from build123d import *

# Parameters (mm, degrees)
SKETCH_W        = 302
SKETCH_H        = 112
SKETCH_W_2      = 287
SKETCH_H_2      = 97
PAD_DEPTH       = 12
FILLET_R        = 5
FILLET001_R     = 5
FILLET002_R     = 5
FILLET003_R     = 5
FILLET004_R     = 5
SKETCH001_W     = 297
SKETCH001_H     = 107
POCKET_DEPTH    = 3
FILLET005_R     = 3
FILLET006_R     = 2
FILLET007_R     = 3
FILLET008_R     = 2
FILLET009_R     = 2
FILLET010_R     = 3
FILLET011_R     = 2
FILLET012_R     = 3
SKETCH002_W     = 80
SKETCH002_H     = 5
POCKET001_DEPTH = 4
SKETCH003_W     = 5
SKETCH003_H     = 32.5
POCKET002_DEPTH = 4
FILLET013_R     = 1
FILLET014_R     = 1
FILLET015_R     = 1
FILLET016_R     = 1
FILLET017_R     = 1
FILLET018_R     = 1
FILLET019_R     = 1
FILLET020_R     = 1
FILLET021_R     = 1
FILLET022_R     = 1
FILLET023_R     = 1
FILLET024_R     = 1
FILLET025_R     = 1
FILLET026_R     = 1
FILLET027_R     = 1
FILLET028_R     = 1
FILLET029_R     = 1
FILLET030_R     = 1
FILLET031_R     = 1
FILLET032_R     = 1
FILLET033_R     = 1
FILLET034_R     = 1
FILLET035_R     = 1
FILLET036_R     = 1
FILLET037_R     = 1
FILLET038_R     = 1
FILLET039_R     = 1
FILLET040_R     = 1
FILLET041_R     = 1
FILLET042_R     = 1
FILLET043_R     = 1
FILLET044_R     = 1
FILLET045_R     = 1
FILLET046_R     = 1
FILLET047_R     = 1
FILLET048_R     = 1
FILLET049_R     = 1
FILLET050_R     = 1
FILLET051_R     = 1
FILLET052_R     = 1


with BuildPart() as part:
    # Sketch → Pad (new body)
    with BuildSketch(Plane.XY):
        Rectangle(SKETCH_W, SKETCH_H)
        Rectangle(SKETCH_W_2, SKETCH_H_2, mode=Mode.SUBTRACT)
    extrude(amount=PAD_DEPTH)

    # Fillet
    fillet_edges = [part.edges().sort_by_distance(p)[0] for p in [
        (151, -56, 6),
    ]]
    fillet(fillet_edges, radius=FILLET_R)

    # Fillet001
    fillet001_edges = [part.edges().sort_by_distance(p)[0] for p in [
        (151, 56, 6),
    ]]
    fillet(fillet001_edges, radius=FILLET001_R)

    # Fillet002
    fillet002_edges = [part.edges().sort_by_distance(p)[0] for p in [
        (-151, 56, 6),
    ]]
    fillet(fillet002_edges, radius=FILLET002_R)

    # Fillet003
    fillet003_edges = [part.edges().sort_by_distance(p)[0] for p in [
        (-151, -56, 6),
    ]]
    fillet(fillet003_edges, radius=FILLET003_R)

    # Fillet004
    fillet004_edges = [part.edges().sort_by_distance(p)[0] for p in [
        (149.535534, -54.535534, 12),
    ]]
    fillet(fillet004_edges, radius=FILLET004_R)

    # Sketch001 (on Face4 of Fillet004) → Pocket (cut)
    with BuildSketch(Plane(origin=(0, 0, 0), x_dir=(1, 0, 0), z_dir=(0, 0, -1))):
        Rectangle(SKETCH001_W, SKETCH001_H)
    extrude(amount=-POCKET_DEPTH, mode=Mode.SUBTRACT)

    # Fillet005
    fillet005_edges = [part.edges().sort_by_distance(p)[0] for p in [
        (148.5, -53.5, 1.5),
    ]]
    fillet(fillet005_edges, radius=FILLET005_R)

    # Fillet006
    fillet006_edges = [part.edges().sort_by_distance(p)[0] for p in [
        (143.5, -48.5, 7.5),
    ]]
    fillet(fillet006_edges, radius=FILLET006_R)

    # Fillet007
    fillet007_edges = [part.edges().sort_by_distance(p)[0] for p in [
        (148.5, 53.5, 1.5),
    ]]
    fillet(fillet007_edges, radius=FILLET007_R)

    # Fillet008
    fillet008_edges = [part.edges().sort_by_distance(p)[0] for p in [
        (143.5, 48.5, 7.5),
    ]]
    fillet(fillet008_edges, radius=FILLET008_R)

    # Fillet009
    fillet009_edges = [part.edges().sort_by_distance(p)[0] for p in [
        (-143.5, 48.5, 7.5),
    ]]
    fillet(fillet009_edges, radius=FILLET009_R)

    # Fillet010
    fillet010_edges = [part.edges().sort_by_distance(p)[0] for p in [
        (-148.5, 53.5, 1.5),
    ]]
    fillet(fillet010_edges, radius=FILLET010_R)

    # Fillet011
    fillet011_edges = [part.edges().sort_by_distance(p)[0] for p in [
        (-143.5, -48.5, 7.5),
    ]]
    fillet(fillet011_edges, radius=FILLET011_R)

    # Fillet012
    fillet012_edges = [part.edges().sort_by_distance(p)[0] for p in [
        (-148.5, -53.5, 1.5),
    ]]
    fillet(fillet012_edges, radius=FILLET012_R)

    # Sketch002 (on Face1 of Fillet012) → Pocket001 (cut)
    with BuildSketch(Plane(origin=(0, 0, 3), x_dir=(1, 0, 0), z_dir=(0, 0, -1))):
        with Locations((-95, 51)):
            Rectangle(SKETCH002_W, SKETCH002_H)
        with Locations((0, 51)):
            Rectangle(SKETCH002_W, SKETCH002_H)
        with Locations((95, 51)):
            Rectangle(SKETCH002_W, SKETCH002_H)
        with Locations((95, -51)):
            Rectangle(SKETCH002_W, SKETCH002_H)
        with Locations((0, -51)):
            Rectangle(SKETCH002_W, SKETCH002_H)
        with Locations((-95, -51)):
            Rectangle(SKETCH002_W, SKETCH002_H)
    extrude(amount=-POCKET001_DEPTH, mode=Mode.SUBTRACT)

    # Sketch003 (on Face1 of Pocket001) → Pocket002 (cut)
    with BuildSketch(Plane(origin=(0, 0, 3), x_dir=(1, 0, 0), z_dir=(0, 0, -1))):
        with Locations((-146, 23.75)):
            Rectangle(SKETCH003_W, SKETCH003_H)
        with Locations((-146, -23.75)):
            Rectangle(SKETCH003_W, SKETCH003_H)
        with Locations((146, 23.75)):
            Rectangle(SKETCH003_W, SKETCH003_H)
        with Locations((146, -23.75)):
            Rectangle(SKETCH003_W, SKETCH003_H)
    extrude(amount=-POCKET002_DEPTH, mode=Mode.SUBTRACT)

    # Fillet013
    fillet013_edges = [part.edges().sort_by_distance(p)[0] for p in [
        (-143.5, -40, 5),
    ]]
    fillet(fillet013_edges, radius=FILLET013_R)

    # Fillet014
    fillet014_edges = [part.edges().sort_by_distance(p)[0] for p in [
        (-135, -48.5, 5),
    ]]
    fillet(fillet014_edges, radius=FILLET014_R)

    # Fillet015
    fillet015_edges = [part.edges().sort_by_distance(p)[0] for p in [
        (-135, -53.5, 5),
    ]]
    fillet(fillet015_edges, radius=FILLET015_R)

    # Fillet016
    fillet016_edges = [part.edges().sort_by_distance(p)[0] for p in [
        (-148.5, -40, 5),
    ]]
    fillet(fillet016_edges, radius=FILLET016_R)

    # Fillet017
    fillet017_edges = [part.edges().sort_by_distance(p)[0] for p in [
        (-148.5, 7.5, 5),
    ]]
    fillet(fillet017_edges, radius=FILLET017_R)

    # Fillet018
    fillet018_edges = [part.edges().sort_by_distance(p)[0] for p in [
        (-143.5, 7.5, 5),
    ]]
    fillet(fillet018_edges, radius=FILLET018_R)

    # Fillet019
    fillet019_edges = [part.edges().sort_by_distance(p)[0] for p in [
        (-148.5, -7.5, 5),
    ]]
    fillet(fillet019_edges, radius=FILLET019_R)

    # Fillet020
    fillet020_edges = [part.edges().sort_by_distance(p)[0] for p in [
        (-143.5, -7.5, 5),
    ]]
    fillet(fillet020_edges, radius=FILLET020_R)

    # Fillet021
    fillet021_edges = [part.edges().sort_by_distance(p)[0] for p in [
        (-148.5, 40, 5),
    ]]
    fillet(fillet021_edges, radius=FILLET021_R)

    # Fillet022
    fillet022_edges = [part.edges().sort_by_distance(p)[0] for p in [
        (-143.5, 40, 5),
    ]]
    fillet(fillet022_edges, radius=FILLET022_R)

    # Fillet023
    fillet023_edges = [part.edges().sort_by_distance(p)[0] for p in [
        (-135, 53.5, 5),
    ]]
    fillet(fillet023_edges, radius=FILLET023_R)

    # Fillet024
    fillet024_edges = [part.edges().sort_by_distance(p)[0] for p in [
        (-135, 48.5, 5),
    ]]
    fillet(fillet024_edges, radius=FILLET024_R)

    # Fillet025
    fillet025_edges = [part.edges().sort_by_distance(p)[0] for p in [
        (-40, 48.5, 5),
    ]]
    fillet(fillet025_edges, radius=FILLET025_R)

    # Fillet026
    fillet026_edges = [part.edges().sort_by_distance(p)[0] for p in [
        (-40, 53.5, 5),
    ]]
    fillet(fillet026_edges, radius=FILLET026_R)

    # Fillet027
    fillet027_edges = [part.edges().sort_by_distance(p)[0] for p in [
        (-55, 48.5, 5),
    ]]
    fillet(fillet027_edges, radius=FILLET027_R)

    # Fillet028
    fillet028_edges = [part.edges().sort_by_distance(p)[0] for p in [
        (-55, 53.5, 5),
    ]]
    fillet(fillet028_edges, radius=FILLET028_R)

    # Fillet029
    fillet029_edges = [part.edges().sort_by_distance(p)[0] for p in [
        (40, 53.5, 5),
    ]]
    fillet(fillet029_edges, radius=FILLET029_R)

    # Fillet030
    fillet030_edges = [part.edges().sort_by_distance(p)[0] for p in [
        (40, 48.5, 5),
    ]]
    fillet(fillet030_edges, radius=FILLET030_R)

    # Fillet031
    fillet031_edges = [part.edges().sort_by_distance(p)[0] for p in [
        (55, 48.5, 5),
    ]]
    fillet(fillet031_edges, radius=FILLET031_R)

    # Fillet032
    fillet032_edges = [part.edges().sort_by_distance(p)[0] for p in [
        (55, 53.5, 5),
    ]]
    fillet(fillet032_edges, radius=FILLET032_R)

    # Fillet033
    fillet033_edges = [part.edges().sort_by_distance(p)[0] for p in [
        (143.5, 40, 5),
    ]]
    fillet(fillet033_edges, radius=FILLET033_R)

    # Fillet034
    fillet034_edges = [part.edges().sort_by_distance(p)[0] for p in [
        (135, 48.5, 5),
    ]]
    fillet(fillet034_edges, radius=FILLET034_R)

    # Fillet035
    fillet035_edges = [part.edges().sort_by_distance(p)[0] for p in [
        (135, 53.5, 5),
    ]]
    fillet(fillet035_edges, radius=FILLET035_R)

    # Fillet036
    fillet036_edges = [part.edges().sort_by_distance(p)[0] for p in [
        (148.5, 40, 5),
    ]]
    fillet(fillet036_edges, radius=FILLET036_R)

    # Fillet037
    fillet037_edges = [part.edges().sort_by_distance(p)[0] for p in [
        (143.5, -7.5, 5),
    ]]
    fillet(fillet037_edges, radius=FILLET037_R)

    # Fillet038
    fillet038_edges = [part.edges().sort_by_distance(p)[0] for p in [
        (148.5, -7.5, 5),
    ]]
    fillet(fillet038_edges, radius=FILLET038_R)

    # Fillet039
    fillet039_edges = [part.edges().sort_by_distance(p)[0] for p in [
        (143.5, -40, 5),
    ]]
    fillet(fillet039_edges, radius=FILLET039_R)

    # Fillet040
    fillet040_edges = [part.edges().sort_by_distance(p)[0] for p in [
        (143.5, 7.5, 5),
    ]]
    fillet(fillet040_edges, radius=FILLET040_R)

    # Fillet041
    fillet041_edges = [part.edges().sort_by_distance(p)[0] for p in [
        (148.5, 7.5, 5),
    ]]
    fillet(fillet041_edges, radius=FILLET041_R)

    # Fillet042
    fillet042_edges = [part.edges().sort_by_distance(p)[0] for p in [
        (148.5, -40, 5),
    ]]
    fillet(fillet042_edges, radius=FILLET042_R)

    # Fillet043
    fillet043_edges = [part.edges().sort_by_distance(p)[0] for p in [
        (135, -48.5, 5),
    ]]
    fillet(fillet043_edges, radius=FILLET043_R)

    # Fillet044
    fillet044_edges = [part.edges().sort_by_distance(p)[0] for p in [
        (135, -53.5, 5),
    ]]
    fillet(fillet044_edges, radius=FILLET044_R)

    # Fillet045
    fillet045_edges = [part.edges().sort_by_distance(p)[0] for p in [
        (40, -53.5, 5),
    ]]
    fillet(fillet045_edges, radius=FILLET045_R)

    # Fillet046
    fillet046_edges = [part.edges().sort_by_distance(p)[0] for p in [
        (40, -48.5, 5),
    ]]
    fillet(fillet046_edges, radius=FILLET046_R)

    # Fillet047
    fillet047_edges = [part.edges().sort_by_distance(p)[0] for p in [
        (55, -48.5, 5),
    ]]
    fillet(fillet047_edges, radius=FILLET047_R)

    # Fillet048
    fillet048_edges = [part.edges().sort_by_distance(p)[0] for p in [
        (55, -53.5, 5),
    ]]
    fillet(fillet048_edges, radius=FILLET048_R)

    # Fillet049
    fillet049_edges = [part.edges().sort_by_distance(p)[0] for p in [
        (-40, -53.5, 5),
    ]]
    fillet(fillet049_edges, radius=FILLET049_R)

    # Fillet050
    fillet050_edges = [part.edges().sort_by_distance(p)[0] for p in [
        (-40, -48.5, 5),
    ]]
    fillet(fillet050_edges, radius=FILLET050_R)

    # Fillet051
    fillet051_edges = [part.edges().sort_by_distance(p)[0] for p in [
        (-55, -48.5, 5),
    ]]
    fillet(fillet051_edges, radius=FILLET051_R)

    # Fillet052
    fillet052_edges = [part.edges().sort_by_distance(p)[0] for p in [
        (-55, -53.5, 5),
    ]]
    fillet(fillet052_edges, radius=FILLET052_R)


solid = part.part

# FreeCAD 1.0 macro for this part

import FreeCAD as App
import Part
import Sketcher
Q = App.Units.Quantity


def edges_at(feature, points):
    """Names of the edges that pass closest to the given points."""
    edges = feature.Shape.Edges
    near = lambda p: min(range(len(edges)), key=lambda i: edges[i].distToShape(Part.Vertex(*p))[0])
    return sorted({f"Edge{near(p) + 1}" for p in points})

doc = App.newDocument("Part")
body = doc.addObject("PartDesign::Body", "Body")

sketch1 = doc.addObject("Sketcher::SketchObject", "Sketch")
body.addObject(sketch1)
sketch1.AttachmentSupport = (doc.XY_Plane, [""])
sketch1.MapMode = "FlatFace"
sketch1.addGeometry(Part.LineSegment(App.Vector(-151, 56, 0), App.Vector(-151, -56, 0)), False)
sketch1.addGeometry(Part.LineSegment(App.Vector(-151, -56, 0), App.Vector(151, -56, 0)), False)
sketch1.addGeometry(Part.LineSegment(App.Vector(151, -56, 0), App.Vector(151, 56, 0)), False)
sketch1.addGeometry(Part.LineSegment(App.Vector(151, 56, 0), App.Vector(-151, 56, 0)), False)
sketch1.addGeometry(Part.LineSegment(App.Vector(144, -48, 0), App.Vector(-144, -48, 0)), False)
sketch1.addGeometry(Part.LineSegment(App.Vector(-144, -48, 0), App.Vector(-144, 48, 0)), False)
sketch1.addGeometry(Part.LineSegment(App.Vector(-144, 48, 0), App.Vector(144, 48, 0)), False)
sketch1.addGeometry(Part.LineSegment(App.Vector(144, 48, 0), App.Vector(144, -48, 0)), False)
sketch1.addConstraint(Sketcher.Constraint("Coincident", 0, 2, 1, 1))
sketch1.addConstraint(Sketcher.Constraint("Coincident", 1, 2, 2, 1))
sketch1.addConstraint(Sketcher.Constraint("Coincident", 2, 2, 3, 1))
sketch1.addConstraint(Sketcher.Constraint("Coincident", 3, 2, 0, 1))
sketch1.addConstraint(Sketcher.Constraint("Coincident", 4, 2, 5, 1))
sketch1.addConstraint(Sketcher.Constraint("Coincident", 5, 2, 6, 1))
sketch1.addConstraint(Sketcher.Constraint("Coincident", 6, 2, 7, 1))
sketch1.addConstraint(Sketcher.Constraint("Coincident", 7, 2, 4, 1))
sketch1.addConstraint(Sketcher.Constraint("Vertical", 0))
sketch1.addConstraint(Sketcher.Constraint("Horizontal", 1))
sketch1.addConstraint(Sketcher.Constraint("Vertical", 2))
sketch1.addConstraint(Sketcher.Constraint("Horizontal", 3))
sketch1.addConstraint(Sketcher.Constraint("Horizontal", 4))
sketch1.addConstraint(Sketcher.Constraint("Vertical", 5))
sketch1.addConstraint(Sketcher.Constraint("Horizontal", 6))
sketch1.addConstraint(Sketcher.Constraint("Vertical", 7))
sketch1.addConstraint(Sketcher.Constraint("Symmetric", 0, 2, 2, 2, -1, 1))
sketch1.addConstraint(Sketcher.Constraint("Symmetric", 4, 2, 6, 2, -1, 1))
sketch1.addConstraint(Sketcher.Constraint("DistanceX", 1, 1, 1, 2, Q("302 mm")))
sketch1.addConstraint(Sketcher.Constraint("DistanceX", 4, 2, 4, 1, Q("287 mm")))
sketch1.addConstraint(Sketcher.Constraint("DistanceY", 0, 2, 0, 1, Q("112 mm")))
sketch1.addConstraint(Sketcher.Constraint("DistanceY", 5, 1, 5, 2, Q("97 mm")))
pad1 = doc.addObject("PartDesign::Pad", "Pad")
body.addObject(pad1)
pad1.Profile = sketch1
pad1.Length = 12
doc.recompute()

fillet = doc.addObject("PartDesign::Fillet", "Fillet")
body.addObject(fillet)
fillet.Base = (pad1, edges_at(pad1, [(151, -56, 6)]))
fillet.Radius = 5
doc.recompute()

fillet2 = doc.addObject("PartDesign::Fillet", "Fillet001")
body.addObject(fillet2)
fillet2.Base = (fillet, edges_at(fillet, [(151, 56, 6)]))
fillet2.Radius = 5
doc.recompute()

fillet3 = doc.addObject("PartDesign::Fillet", "Fillet002")
body.addObject(fillet3)
fillet3.Base = (fillet2, edges_at(fillet2, [(-151, 56, 6)]))
fillet3.Radius = 5
doc.recompute()

fillet4 = doc.addObject("PartDesign::Fillet", "Fillet003")
body.addObject(fillet4)
fillet4.Base = (fillet3, edges_at(fillet3, [(-151, -56, 6)]))
fillet4.Radius = 5
doc.recompute()

fillet5 = doc.addObject("PartDesign::Fillet", "Fillet004")
body.addObject(fillet5)
fillet5.Base = (fillet4, edges_at(fillet4, [(149.536, -54.536, 12)]))
fillet5.Radius = 5

sketch2 = doc.addObject("Sketcher::SketchObject", "Sketch001")
body.addObject(sketch2)
sketch2.AttachmentSupport = (doc.XY_Plane, [""])
sketch2.MapMode = "FlatFace"
sketch2.addGeometry(Part.LineSegment(App.Vector(-148, -54, 0), App.Vector(-148, 54, 0)), False)
sketch2.addGeometry(Part.LineSegment(App.Vector(-148, 54, 0), App.Vector(148, 54, 0)), False)
sketch2.addGeometry(Part.LineSegment(App.Vector(148, 54, 0), App.Vector(148, -54, 0)), False)
sketch2.addGeometry(Part.LineSegment(App.Vector(148, -54, 0), App.Vector(-148, -54, 0)), False)
sketch2.addConstraint(Sketcher.Constraint("Coincident", 0, 2, 1, 1))
sketch2.addConstraint(Sketcher.Constraint("Coincident", 1, 2, 2, 1))
sketch2.addConstraint(Sketcher.Constraint("Coincident", 2, 2, 3, 1))
sketch2.addConstraint(Sketcher.Constraint("Coincident", 3, 2, 0, 1))
sketch2.addConstraint(Sketcher.Constraint("Vertical", 0))
sketch2.addConstraint(Sketcher.Constraint("Horizontal", 1))
sketch2.addConstraint(Sketcher.Constraint("Vertical", 2))
sketch2.addConstraint(Sketcher.Constraint("Horizontal", 3))
sketch2.addConstraint(Sketcher.Constraint("Symmetric", 0, 2, 2, 2, -1, 1))
sketch2.addConstraint(Sketcher.Constraint("DistanceX", 1, 1, 1, 2, Q("297 mm")))
sketch2.addConstraint(Sketcher.Constraint("DistanceY", 0, 1, 0, 2, Q("107 mm")))
pocket1 = doc.addObject("PartDesign::Pocket", "Pocket")
body.addObject(pocket1)
pocket1.Profile = sketch2
pocket1.Length = 3
pocket1.Reversed = True
doc.recompute()

fillet6 = doc.addObject("PartDesign::Fillet", "Fillet005")
body.addObject(fillet6)
fillet6.Base = (pocket1, edges_at(pocket1, [(148.5, -53.5, 1.5)]))
fillet6.Radius = 3
doc.recompute()

fillet7 = doc.addObject("PartDesign::Fillet", "Fillet006")
body.addObject(fillet7)
fillet7.Base = (fillet6, edges_at(fillet6, [(143.5, -48.5, 7.5)]))
fillet7.Radius = 2
doc.recompute()

fillet8 = doc.addObject("PartDesign::Fillet", "Fillet007")
body.addObject(fillet8)
fillet8.Base = (fillet7, edges_at(fillet7, [(148.5, 53.5, 1.5)]))
fillet8.Radius = 3
doc.recompute()

fillet9 = doc.addObject("PartDesign::Fillet", "Fillet008")
body.addObject(fillet9)
fillet9.Base = (fillet8, edges_at(fillet8, [(143.5, 48.5, 7.5)]))
fillet9.Radius = 2
doc.recompute()

fillet10 = doc.addObject("PartDesign::Fillet", "Fillet009")
body.addObject(fillet10)
fillet10.Base = (fillet9, edges_at(fillet9, [(-143.5, 48.5, 7.5)]))
fillet10.Radius = 2
doc.recompute()

fillet11 = doc.addObject("PartDesign::Fillet", "Fillet010")
body.addObject(fillet11)
fillet11.Base = (fillet10, edges_at(fillet10, [(-148.5, 53.5, 1.5)]))
fillet11.Radius = 3
doc.recompute()

fillet12 = doc.addObject("PartDesign::Fillet", "Fillet011")
body.addObject(fillet12)
fillet12.Base = (fillet11, edges_at(fillet11, [(-143.5, -48.5, 7.5)]))
fillet12.Radius = 2
doc.recompute()

fillet13 = doc.addObject("PartDesign::Fillet", "Fillet012")
body.addObject(fillet13)
fillet13.Base = (fillet12, edges_at(fillet12, [(-148.5, -53.5, 1.5)]))
fillet13.Radius = 3

sketch3 = doc.addObject("Sketcher::SketchObject", "Sketch002")
body.addObject(sketch3)
sketch3.AttachmentSupport = (doc.XY_Plane, [""])
sketch3.MapMode = "FlatFace"
sketch3.AttachmentOffset = App.Placement(App.Vector(0, 0, 3), App.Rotation())
sketch3.addGeometry(Part.LineSegment(App.Vector(-135, -54, 0), App.Vector(-135, -48, 0)), False)
sketch3.addGeometry(Part.LineSegment(App.Vector(-135, -48, 0), App.Vector(-55, -48, 0)), False)
sketch3.addGeometry(Part.LineSegment(App.Vector(-55, -48, 0), App.Vector(-55, -54, 0)), False)
sketch3.addGeometry(Part.LineSegment(App.Vector(-55, -54, 0), App.Vector(-135, -54, 0)), False)
sketch3.addGeometry(Part.LineSegment(App.Vector(-40, -54, 0), App.Vector(-40, -48, 0)), False)
sketch3.addGeometry(Part.LineSegment(App.Vector(-40, -48, 0), App.Vector(40, -48, 0)), False)
sketch3.addGeometry(Part.LineSegment(App.Vector(40, -48, 0), App.Vector(40, -54, 0)), False)
sketch3.addGeometry(Part.LineSegment(App.Vector(40, -54, 0), App.Vector(-40, -54, 0)), False)
sketch3.addGeometry(Part.LineSegment(App.Vector(55, -54, 0), App.Vector(55, -48, 0)), False)
sketch3.addGeometry(Part.LineSegment(App.Vector(55, -48, 0), App.Vector(135, -48, 0)), False)
sketch3.addGeometry(Part.LineSegment(App.Vector(135, -48, 0), App.Vector(135, -54, 0)), False)
sketch3.addGeometry(Part.LineSegment(App.Vector(135, -54, 0), App.Vector(55, -54, 0)), False)
sketch3.addGeometry(Part.LineSegment(App.Vector(55, 48, 0), App.Vector(55, 54, 0)), False)
sketch3.addGeometry(Part.LineSegment(App.Vector(55, 54, 0), App.Vector(135, 54, 0)), False)
sketch3.addGeometry(Part.LineSegment(App.Vector(135, 54, 0), App.Vector(135, 48, 0)), False)
sketch3.addGeometry(Part.LineSegment(App.Vector(135, 48, 0), App.Vector(55, 48, 0)), False)
sketch3.addGeometry(Part.LineSegment(App.Vector(-40, 48, 0), App.Vector(-40, 54, 0)), False)
sketch3.addGeometry(Part.LineSegment(App.Vector(-40, 54, 0), App.Vector(40, 54, 0)), False)
sketch3.addGeometry(Part.LineSegment(App.Vector(40, 54, 0), App.Vector(40, 48, 0)), False)
sketch3.addGeometry(Part.LineSegment(App.Vector(40, 48, 0), App.Vector(-40, 48, 0)), False)
sketch3.addGeometry(Part.LineSegment(App.Vector(-135, 48, 0), App.Vector(-135, 54, 0)), False)
sketch3.addGeometry(Part.LineSegment(App.Vector(-135, 54, 0), App.Vector(-55, 54, 0)), False)
sketch3.addGeometry(Part.LineSegment(App.Vector(-55, 54, 0), App.Vector(-55, 48, 0)), False)
sketch3.addGeometry(Part.LineSegment(App.Vector(-55, 48, 0), App.Vector(-135, 48, 0)), False)
sketch3.addConstraint(Sketcher.Constraint("Coincident", 0, 2, 1, 1))
sketch3.addConstraint(Sketcher.Constraint("Coincident", 1, 2, 2, 1))
sketch3.addConstraint(Sketcher.Constraint("Coincident", 2, 2, 3, 1))
sketch3.addConstraint(Sketcher.Constraint("Coincident", 3, 2, 0, 1))
sketch3.addConstraint(Sketcher.Constraint("Coincident", 4, 2, 5, 1))
sketch3.addConstraint(Sketcher.Constraint("Coincident", 5, 2, 6, 1))
sketch3.addConstraint(Sketcher.Constraint("Coincident", 6, 2, 7, 1))
sketch3.addConstraint(Sketcher.Constraint("Coincident", 7, 2, 4, 1))
sketch3.addConstraint(Sketcher.Constraint("Coincident", 8, 2, 9, 1))
sketch3.addConstraint(Sketcher.Constraint("Coincident", 9, 2, 10, 1))
sketch3.addConstraint(Sketcher.Constraint("Coincident", 10, 2, 11, 1))
sketch3.addConstraint(Sketcher.Constraint("Coincident", 11, 2, 8, 1))
sketch3.addConstraint(Sketcher.Constraint("Coincident", 12, 2, 13, 1))
sketch3.addConstraint(Sketcher.Constraint("Coincident", 13, 2, 14, 1))
sketch3.addConstraint(Sketcher.Constraint("Coincident", 14, 2, 15, 1))
sketch3.addConstraint(Sketcher.Constraint("Coincident", 15, 2, 12, 1))
sketch3.addConstraint(Sketcher.Constraint("Coincident", 16, 2, 17, 1))
sketch3.addConstraint(Sketcher.Constraint("Coincident", 17, 2, 18, 1))
sketch3.addConstraint(Sketcher.Constraint("Coincident", 18, 2, 19, 1))
sketch3.addConstraint(Sketcher.Constraint("Coincident", 19, 2, 16, 1))
sketch3.addConstraint(Sketcher.Constraint("Coincident", 20, 2, 21, 1))
sketch3.addConstraint(Sketcher.Constraint("Coincident", 21, 2, 22, 1))
sketch3.addConstraint(Sketcher.Constraint("Coincident", 22, 2, 23, 1))
sketch3.addConstraint(Sketcher.Constraint("Coincident", 23, 2, 20, 1))
sketch3.addConstraint(Sketcher.Constraint("Vertical", 0))
sketch3.addConstraint(Sketcher.Constraint("Horizontal", 1))
sketch3.addConstraint(Sketcher.Constraint("Vertical", 2))
sketch3.addConstraint(Sketcher.Constraint("Horizontal", 3))
sketch3.addConstraint(Sketcher.Constraint("Vertical", 4))
sketch3.addConstraint(Sketcher.Constraint("Horizontal", 5))
sketch3.addConstraint(Sketcher.Constraint("Vertical", 6))
sketch3.addConstraint(Sketcher.Constraint("Horizontal", 7))
sketch3.addConstraint(Sketcher.Constraint("Vertical", 8))
sketch3.addConstraint(Sketcher.Constraint("Horizontal", 9))
sketch3.addConstraint(Sketcher.Constraint("Vertical", 10))
sketch3.addConstraint(Sketcher.Constraint("Horizontal", 11))
sketch3.addConstraint(Sketcher.Constraint("Vertical", 12))
sketch3.addConstraint(Sketcher.Constraint("Horizontal", 13))
sketch3.addConstraint(Sketcher.Constraint("Vertical", 14))
sketch3.addConstraint(Sketcher.Constraint("Horizontal", 15))
sketch3.addConstraint(Sketcher.Constraint("Vertical", 16))
sketch3.addConstraint(Sketcher.Constraint("Horizontal", 17))
sketch3.addConstraint(Sketcher.Constraint("Vertical", 18))
sketch3.addConstraint(Sketcher.Constraint("Horizontal", 19))
sketch3.addConstraint(Sketcher.Constraint("Vertical", 20))
sketch3.addConstraint(Sketcher.Constraint("Horizontal", 21))
sketch3.addConstraint(Sketcher.Constraint("Vertical", 22))
sketch3.addConstraint(Sketcher.Constraint("Horizontal", 23))
sketch3.addConstraint(Sketcher.Constraint("Symmetric", 2, 2, 12, 2, -1, 1))
sketch3.addConstraint(Sketcher.Constraint("Symmetric", 0, 2, 14, 2, -1, 1))
sketch3.addConstraint(Sketcher.Constraint("Symmetric", 6, 2, 16, 2, -1, 1))
sketch3.addConstraint(Sketcher.Constraint("Symmetric", 4, 2, 18, 2, -1, 1))
sketch3.addConstraint(Sketcher.Constraint("Symmetric", 10, 2, 20, 2, -1, 1))
sketch3.addConstraint(Sketcher.Constraint("Symmetric", 8, 2, 22, 2, -1, 1))
sketch3.addConstraint(Sketcher.Constraint("Symmetric", 1, 2, 8, 2, -2))
sketch3.addConstraint(Sketcher.Constraint("Symmetric", 3, 2, 10, 2, -2))
sketch3.addConstraint(Sketcher.Constraint("Horizontal", 1, 2, 4, 2))
sketch3.addConstraint(Sketcher.Constraint("Horizontal", 3, 2, 6, 2))
sketch3.addConstraint(Sketcher.Constraint("Vertical", 7, 2, 16, 2))
sketch3.addConstraint(Sketcher.Constraint("Equal", 3, 5))
sketch3.addConstraint(Sketcher.Constraint("DistanceX", 1, 1, 1, 2, Q("80 mm")))
sketch3.addConstraint(Sketcher.Constraint("DistanceY", 0, 1, 0, 2, Q("5 mm")))
sketch3.addConstraint(Sketcher.Constraint("DistanceX", 0, 2, -1, 1, Q("135 mm")))
sketch3.addConstraint(Sketcher.Constraint("DistanceY", 8, 2, 12, 2, Q("102 mm")))
pocket2 = doc.addObject("PartDesign::Pocket", "Pocket001")
body.addObject(pocket2)
pocket2.Profile = sketch3
pocket2.Length = 4
pocket2.Reversed = True

sketch4 = doc.addObject("Sketcher::SketchObject", "Sketch003")
body.addObject(sketch4)
sketch4.AttachmentSupport = (doc.XY_Plane, [""])
sketch4.MapMode = "FlatFace"
sketch4.AttachmentOffset = App.Placement(App.Vector(0, 0, 3), App.Rotation())
sketch4.addGeometry(Part.LineSegment(App.Vector(-148, -40, 0), App.Vector(-148, -8, 0)), False)
sketch4.addGeometry(Part.LineSegment(App.Vector(-148, -8, 0), App.Vector(-144, -8, 0)), False)
sketch4.addGeometry(Part.LineSegment(App.Vector(-144, -8, 0), App.Vector(-144, -40, 0)), False)
sketch4.addGeometry(Part.LineSegment(App.Vector(-144, -40, 0), App.Vector(-148, -40, 0)), False)
sketch4.addGeometry(Part.LineSegment(App.Vector(-148, 8, 0), App.Vector(-148, 40, 0)), False)
sketch4.addGeometry(Part.LineSegment(App.Vector(-148, 40, 0), App.Vector(-144, 40, 0)), False)
sketch4.addGeometry(Part.LineSegment(App.Vector(-144, 40, 0), App.Vector(-144, 8, 0)), False)
sketch4.addGeometry(Part.LineSegment(App.Vector(-144, 8, 0), App.Vector(-148, 8, 0)), False)
sketch4.addGeometry(Part.LineSegment(App.Vector(144, -40, 0), App.Vector(144, -8, 0)), False)
sketch4.addGeometry(Part.LineSegment(App.Vector(144, -8, 0), App.Vector(148, -8, 0)), False)
sketch4.addGeometry(Part.LineSegment(App.Vector(148, -8, 0), App.Vector(148, -40, 0)), False)
sketch4.addGeometry(Part.LineSegment(App.Vector(148, -40, 0), App.Vector(144, -40, 0)), False)
sketch4.addGeometry(Part.LineSegment(App.Vector(144, 8, 0), App.Vector(144, 40, 0)), False)
sketch4.addGeometry(Part.LineSegment(App.Vector(144, 40, 0), App.Vector(148, 40, 0)), False)
sketch4.addGeometry(Part.LineSegment(App.Vector(148, 40, 0), App.Vector(148, 8, 0)), False)
sketch4.addGeometry(Part.LineSegment(App.Vector(148, 8, 0), App.Vector(144, 8, 0)), False)
sketch4.addConstraint(Sketcher.Constraint("Coincident", 0, 2, 1, 1))
sketch4.addConstraint(Sketcher.Constraint("Coincident", 1, 2, 2, 1))
sketch4.addConstraint(Sketcher.Constraint("Coincident", 2, 2, 3, 1))
sketch4.addConstraint(Sketcher.Constraint("Coincident", 3, 2, 0, 1))
sketch4.addConstraint(Sketcher.Constraint("Coincident", 4, 2, 5, 1))
sketch4.addConstraint(Sketcher.Constraint("Coincident", 5, 2, 6, 1))
sketch4.addConstraint(Sketcher.Constraint("Coincident", 6, 2, 7, 1))
sketch4.addConstraint(Sketcher.Constraint("Coincident", 7, 2, 4, 1))
sketch4.addConstraint(Sketcher.Constraint("Coincident", 8, 2, 9, 1))
sketch4.addConstraint(Sketcher.Constraint("Coincident", 9, 2, 10, 1))
sketch4.addConstraint(Sketcher.Constraint("Coincident", 10, 2, 11, 1))
sketch4.addConstraint(Sketcher.Constraint("Coincident", 11, 2, 8, 1))
sketch4.addConstraint(Sketcher.Constraint("Coincident", 12, 2, 13, 1))
sketch4.addConstraint(Sketcher.Constraint("Coincident", 13, 2, 14, 1))
sketch4.addConstraint(Sketcher.Constraint("Coincident", 14, 2, 15, 1))
sketch4.addConstraint(Sketcher.Constraint("Coincident", 15, 2, 12, 1))
sketch4.addConstraint(Sketcher.Constraint("Vertical", 0))
sketch4.addConstraint(Sketcher.Constraint("Horizontal", 1))
sketch4.addConstraint(Sketcher.Constraint("Vertical", 2))
sketch4.addConstraint(Sketcher.Constraint("Horizontal", 3))
sketch4.addConstraint(Sketcher.Constraint("Vertical", 4))
sketch4.addConstraint(Sketcher.Constraint("Horizontal", 5))
sketch4.addConstraint(Sketcher.Constraint("Vertical", 6))
sketch4.addConstraint(Sketcher.Constraint("Horizontal", 7))
sketch4.addConstraint(Sketcher.Constraint("Vertical", 8))
sketch4.addConstraint(Sketcher.Constraint("Horizontal", 9))
sketch4.addConstraint(Sketcher.Constraint("Vertical", 10))
sketch4.addConstraint(Sketcher.Constraint("Horizontal", 11))
sketch4.addConstraint(Sketcher.Constraint("Vertical", 12))
sketch4.addConstraint(Sketcher.Constraint("Horizontal", 13))
sketch4.addConstraint(Sketcher.Constraint("Vertical", 14))
sketch4.addConstraint(Sketcher.Constraint("Horizontal", 15))
sketch4.addConstraint(Sketcher.Constraint("Symmetric", 6, 2, 8, 2, -1, 1))
sketch4.addConstraint(Sketcher.Constraint("Symmetric", 4, 2, 10, 2, -1, 1))
sketch4.addConstraint(Sketcher.Constraint("Symmetric", 2, 2, 12, 2, -1, 1))
sketch4.addConstraint(Sketcher.Constraint("Symmetric", 0, 2, 14, 2, -1, 1))
sketch4.addConstraint(Sketcher.Constraint("Symmetric", 1, 2, 8, 2, -2))
sketch4.addConstraint(Sketcher.Constraint("Symmetric", 3, 2, 10, 2, -2))
sketch4.addConstraint(Sketcher.Constraint("DistanceX", 1, 1, 1, 2, Q("5 mm")))
sketch4.addConstraint(Sketcher.Constraint("DistanceY", 0, 1, 0, 2, Q("32.5 mm")))
sketch4.addConstraint(Sketcher.Constraint("DistanceY", 2, 2, -1, 1, Q("40 mm")))
sketch4.addConstraint(Sketcher.Constraint("DistanceX", 1, 2, 8, 2, Q("287 mm")))
pocket3 = doc.addObject("PartDesign::Pocket", "Pocket002")
body.addObject(pocket3)
pocket3.Profile = sketch4
pocket3.Length = 4
pocket3.Reversed = True
doc.recompute()

fillet14 = doc.addObject("PartDesign::Fillet", "Fillet013")
body.addObject(fillet14)
fillet14.Base = (pocket3, edges_at(pocket3, [(-143.5, -40, 5)]))
fillet14.Radius = 1
doc.recompute()

fillet15 = doc.addObject("PartDesign::Fillet", "Fillet014")
body.addObject(fillet15)
fillet15.Base = (fillet14, edges_at(fillet14, [(-135, -48.5, 5)]))
fillet15.Radius = 1
doc.recompute()

fillet16 = doc.addObject("PartDesign::Fillet", "Fillet015")
body.addObject(fillet16)
fillet16.Base = (fillet15, edges_at(fillet15, [(-135, -53.5, 5)]))
fillet16.Radius = 1
doc.recompute()

fillet17 = doc.addObject("PartDesign::Fillet", "Fillet016")
body.addObject(fillet17)
fillet17.Base = (fillet16, edges_at(fillet16, [(-148.5, -40, 5)]))
fillet17.Radius = 1
doc.recompute()

fillet18 = doc.addObject("PartDesign::Fillet", "Fillet017")
body.addObject(fillet18)
fillet18.Base = (fillet17, edges_at(fillet17, [(-148.5, 7.5, 5)]))
fillet18.Radius = 1
doc.recompute()

fillet19 = doc.addObject("PartDesign::Fillet", "Fillet018")
body.addObject(fillet19)
fillet19.Base = (fillet18, edges_at(fillet18, [(-143.5, 7.5, 5)]))
fillet19.Radius = 1
doc.recompute()

fillet20 = doc.addObject("PartDesign::Fillet", "Fillet019")
body.addObject(fillet20)
fillet20.Base = (fillet19, edges_at(fillet19, [(-148.5, -7.5, 5)]))
fillet20.Radius = 1
doc.recompute()

fillet21 = doc.addObject("PartDesign::Fillet", "Fillet020")
body.addObject(fillet21)
fillet21.Base = (fillet20, edges_at(fillet20, [(-143.5, -7.5, 5)]))
fillet21.Radius = 1
doc.recompute()

fillet22 = doc.addObject("PartDesign::Fillet", "Fillet021")
body.addObject(fillet22)
fillet22.Base = (fillet21, edges_at(fillet21, [(-148.5, 40, 5)]))
fillet22.Radius = 1
doc.recompute()

fillet23 = doc.addObject("PartDesign::Fillet", "Fillet022")
body.addObject(fillet23)
fillet23.Base = (fillet22, edges_at(fillet22, [(-143.5, 40, 5)]))
fillet23.Radius = 1
doc.recompute()

fillet24 = doc.addObject("PartDesign::Fillet", "Fillet023")
body.addObject(fillet24)
fillet24.Base = (fillet23, edges_at(fillet23, [(-135, 53.5, 5)]))
fillet24.Radius = 1
doc.recompute()

fillet25 = doc.addObject("PartDesign::Fillet", "Fillet024")
body.addObject(fillet25)
fillet25.Base = (fillet24, edges_at(fillet24, [(-135, 48.5, 5)]))
fillet25.Radius = 1
doc.recompute()

fillet26 = doc.addObject("PartDesign::Fillet", "Fillet025")
body.addObject(fillet26)
fillet26.Base = (fillet25, edges_at(fillet25, [(-40, 48.5, 5)]))
fillet26.Radius = 1
doc.recompute()

fillet27 = doc.addObject("PartDesign::Fillet", "Fillet026")
body.addObject(fillet27)
fillet27.Base = (fillet26, edges_at(fillet26, [(-40, 53.5, 5)]))
fillet27.Radius = 1
doc.recompute()

fillet28 = doc.addObject("PartDesign::Fillet", "Fillet027")
body.addObject(fillet28)
fillet28.Base = (fillet27, edges_at(fillet27, [(-55, 48.5, 5)]))
fillet28.Radius = 1
doc.recompute()

fillet29 = doc.addObject("PartDesign::Fillet", "Fillet028")
body.addObject(fillet29)
fillet29.Base = (fillet28, edges_at(fillet28, [(-55, 53.5, 5)]))
fillet29.Radius = 1
doc.recompute()

fillet30 = doc.addObject("PartDesign::Fillet", "Fillet029")
body.addObject(fillet30)
fillet30.Base = (fillet29, edges_at(fillet29, [(40, 53.5, 5)]))
fillet30.Radius = 1
doc.recompute()

fillet31 = doc.addObject("PartDesign::Fillet", "Fillet030")
body.addObject(fillet31)
fillet31.Base = (fillet30, edges_at(fillet30, [(40, 48.5, 5)]))
fillet31.Radius = 1
doc.recompute()

fillet32 = doc.addObject("PartDesign::Fillet", "Fillet031")
body.addObject(fillet32)
fillet32.Base = (fillet31, edges_at(fillet31, [(55, 48.5, 5)]))
fillet32.Radius = 1
doc.recompute()

fillet33 = doc.addObject("PartDesign::Fillet", "Fillet032")
body.addObject(fillet33)
fillet33.Base = (fillet32, edges_at(fillet32, [(55, 53.5, 5)]))
fillet33.Radius = 1
doc.recompute()

fillet34 = doc.addObject("PartDesign::Fillet", "Fillet033")
body.addObject(fillet34)
fillet34.Base = (fillet33, edges_at(fillet33, [(143.5, 40, 5)]))
fillet34.Radius = 1
doc.recompute()

fillet35 = doc.addObject("PartDesign::Fillet", "Fillet034")
body.addObject(fillet35)
fillet35.Base = (fillet34, edges_at(fillet34, [(135, 48.5, 5)]))
fillet35.Radius = 1
doc.recompute()

fillet36 = doc.addObject("PartDesign::Fillet", "Fillet035")
body.addObject(fillet36)
fillet36.Base = (fillet35, edges_at(fillet35, [(135, 53.5, 5)]))
fillet36.Radius = 1
doc.recompute()

fillet37 = doc.addObject("PartDesign::Fillet", "Fillet036")
body.addObject(fillet37)
fillet37.Base = (fillet36, edges_at(fillet36, [(148.5, 40, 5)]))
fillet37.Radius = 1
doc.recompute()

fillet38 = doc.addObject("PartDesign::Fillet", "Fillet037")
body.addObject(fillet38)
fillet38.Base = (fillet37, edges_at(fillet37, [(143.5, -7.5, 5)]))
fillet38.Radius = 1
doc.recompute()

fillet39 = doc.addObject("PartDesign::Fillet", "Fillet038")
body.addObject(fillet39)
fillet39.Base = (fillet38, edges_at(fillet38, [(148.5, -7.5, 5)]))
fillet39.Radius = 1
doc.recompute()

fillet40 = doc.addObject("PartDesign::Fillet", "Fillet039")
body.addObject(fillet40)
fillet40.Base = (fillet39, edges_at(fillet39, [(143.5, -40, 5)]))
fillet40.Radius = 1
doc.recompute()

fillet41 = doc.addObject("PartDesign::Fillet", "Fillet040")
body.addObject(fillet41)
fillet41.Base = (fillet40, edges_at(fillet40, [(143.5, 7.5, 5)]))
fillet41.Radius = 1
doc.recompute()

fillet42 = doc.addObject("PartDesign::Fillet", "Fillet041")
body.addObject(fillet42)
fillet42.Base = (fillet41, edges_at(fillet41, [(148.5, 7.5, 5)]))
fillet42.Radius = 1
doc.recompute()

fillet43 = doc.addObject("PartDesign::Fillet", "Fillet042")
body.addObject(fillet43)
fillet43.Base = (fillet42, edges_at(fillet42, [(148.5, -40, 5)]))
fillet43.Radius = 1
doc.recompute()

fillet44 = doc.addObject("PartDesign::Fillet", "Fillet043")
body.addObject(fillet44)
fillet44.Base = (fillet43, edges_at(fillet43, [(135, -48.5, 5)]))
fillet44.Radius = 1
doc.recompute()

fillet45 = doc.addObject("PartDesign::Fillet", "Fillet044")
body.addObject(fillet45)
fillet45.Base = (fillet44, edges_at(fillet44, [(135, -53.5, 5)]))
fillet45.Radius = 1
doc.recompute()

fillet46 = doc.addObject("PartDesign::Fillet", "Fillet045")
body.addObject(fillet46)
fillet46.Base = (fillet45, edges_at(fillet45, [(40, -53.5, 5)]))
fillet46.Radius = 1
doc.recompute()

fillet47 = doc.addObject("PartDesign::Fillet", "Fillet046")
body.addObject(fillet47)
fillet47.Base = (fillet46, edges_at(fillet46, [(40, -48.5, 5)]))
fillet47.Radius = 1
doc.recompute()

fillet48 = doc.addObject("PartDesign::Fillet", "Fillet047")
body.addObject(fillet48)
fillet48.Base = (fillet47, edges_at(fillet47, [(55, -48.5, 5)]))
fillet48.Radius = 1
doc.recompute()

fillet49 = doc.addObject("PartDesign::Fillet", "Fillet048")
body.addObject(fillet49)
fillet49.Base = (fillet48, edges_at(fillet48, [(55, -53.5, 5)]))
fillet49.Radius = 1
doc.recompute()

fillet50 = doc.addObject("PartDesign::Fillet", "Fillet049")
body.addObject(fillet50)
fillet50.Base = (fillet49, edges_at(fillet49, [(-40, -53.5, 5)]))
fillet50.Radius = 1
doc.recompute()

fillet51 = doc.addObject("PartDesign::Fillet", "Fillet050")
body.addObject(fillet51)
fillet51.Base = (fillet50, edges_at(fillet50, [(-40, -48.5, 5)]))
fillet51.Radius = 1
doc.recompute()

fillet52 = doc.addObject("PartDesign::Fillet", "Fillet051")
body.addObject(fillet52)
fillet52.Base = (fillet51, edges_at(fillet51, [(-55, -48.5, 5)]))
fillet52.Radius = 1
doc.recompute()

fillet53 = doc.addObject("PartDesign::Fillet", "Fillet052")
body.addObject(fillet53)
fillet53.Base = (fillet52, edges_at(fillet52, [(-55, -53.5, 5)]))
fillet53.Radius = 1

doc.recompute()
